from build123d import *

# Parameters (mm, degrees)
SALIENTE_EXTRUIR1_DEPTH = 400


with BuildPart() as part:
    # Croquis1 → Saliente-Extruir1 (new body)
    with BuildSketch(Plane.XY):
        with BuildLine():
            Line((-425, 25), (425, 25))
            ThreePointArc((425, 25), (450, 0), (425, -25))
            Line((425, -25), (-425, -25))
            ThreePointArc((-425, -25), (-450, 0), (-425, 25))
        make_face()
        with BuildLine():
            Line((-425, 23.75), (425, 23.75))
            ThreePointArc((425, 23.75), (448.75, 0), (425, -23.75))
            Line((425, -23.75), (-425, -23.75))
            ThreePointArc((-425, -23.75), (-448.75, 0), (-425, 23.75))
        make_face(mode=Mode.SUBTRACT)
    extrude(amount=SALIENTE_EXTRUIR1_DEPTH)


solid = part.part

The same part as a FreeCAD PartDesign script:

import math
import FreeCAD as App
import Part
import Sketcher

V = App.Vector
Q = App.Units.Quantity

doc = App.newDocument("Part")
params = doc.addObject("Spreadsheet::Sheet", "Params")
for row, (alias, value) in enumerate([
    ("sketch1_radius", "25 mm"),
    ("sketch1_width", "850 mm"),
    ("sketch1_radius2", "23.75 mm"),
    ("pad1_length", "400 mm"),
], start=1):
    params.set(f"A{row}", alias)
    params.set(f"B{row}", "=" + value)
    params.setAlias(f"B{row}", alias)

body = doc.addObject("PartDesign::Body", "Body")

sketch1 = doc.addObject("Sketcher::SketchObject", "Sketch")
body.addObject(sketch1)
sketch1.AttachmentSupport = (doc.XY_Plane, [""])
sketch1.MapMode = "FlatFace"
sketch1.addGeometry(Part.LineSegment(V(425, 25, 0), V(-425, 25, 0)), False)
sketch1.addGeometry(Part.ArcOfCircle(Part.Circle(V(-425, 0, 0), V(0, 0, 1), 25), math.radians(90), math.radians(270)), False)
sketch1.addGeometry(Part.LineSegment(V(-425, -25, 0), V(425, -25, 0)), False)
sketch1.addGeometry(Part.ArcOfCircle(Part.Circle(V(425, 0, 0), V(0, 0, 1), 25), math.radians(-90), math.radians(90)), False)
sketch1.addGeometry(Part.LineSegment(V(-425, 24, 0), V(425, 24, 0)), False)
sketch1.addGeometry(Part.ArcOfCircle(Part.Circle(V(425, 0, 0), V(0, 0, 1), 24), math.radians(-90), math.radians(90)), False)
sketch1.addGeometry(Part.LineSegment(V(425, -24, 0), V(-425, -24, 0)), False)
sketch1.addGeometry(Part.ArcOfCircle(Part.Circle(V(-425, 0, 0), V(0, 0, 1), 24), math.radians(90), math.radians(270)), False)
sketch1.addConstraint(Sketcher.Constraint("Tangent", 0, 2, 1, 1))
sketch1.addConstraint(Sketcher.Constraint("Tangent", 1, 2, 2, 1))
sketch1.addConstraint(Sketcher.Constraint("Tangent", 2, 2, 3, 1))
sketch1.addConstraint(Sketcher.Constraint("Tangent", 3, 2, 0, 1))
sketch1.addConstraint(Sketcher.Constraint("Tangent", 4, 2, 5, 2))
sketch1.addConstraint(Sketcher.Constraint("Tangent", 5, 1, 6, 1))
sketch1.addConstraint(Sketcher.Constraint("Tangent", 6, 2, 7, 2))
sketch1.addConstraint(Sketcher.Constraint("Tangent", 7, 1, 4, 1))
sketch1.addConstraint(Sketcher.Constraint("Horizontal", 0))
sketch1.addConstraint(Sketcher.Constraint("Horizontal", 2))
sketch1.addConstraint(Sketcher.Constraint("Horizontal", 4))
sketch1.addConstraint(Sketcher.Constraint("Horizontal", 6))
sketch1.addConstraint(Sketcher.Constraint("Coincident", 5, 3, 3, 3))
sketch1.addConstraint(Sketcher.Constraint("Symmetric", 1, 3, 3, 3, -1, 1))
sketch1.addConstraint(Sketcher.Constraint("Vertical", 7, 3, 0, 2))
sketch1.addConstraint(Sketcher.Constraint("Radius", 1, Q("25 mm")))
sketch1.addConstraint(Sketcher.Constraint("DistanceX", 0, 2, 0, 1, Q("850 mm")))
sketch1.addConstraint(Sketcher.Constraint("Radius", 5, Q("23.75 mm")))
sketch1.setExpression("Constraints[15]", "Params.sketch1_radius")
sketch1.setExpression("Constraints[16]", "Params.sketch1_width")
sketch1.setExpression("Constraints[17]", "Params.sketch1_radius2")
pad1 = doc.addObject("PartDesign::Pad", "Pad")
body.addObject(pad1)
pad1.Profile = sketch1
pad1.setExpression("Length", "Params.pad1_length")

doc.recompute()
